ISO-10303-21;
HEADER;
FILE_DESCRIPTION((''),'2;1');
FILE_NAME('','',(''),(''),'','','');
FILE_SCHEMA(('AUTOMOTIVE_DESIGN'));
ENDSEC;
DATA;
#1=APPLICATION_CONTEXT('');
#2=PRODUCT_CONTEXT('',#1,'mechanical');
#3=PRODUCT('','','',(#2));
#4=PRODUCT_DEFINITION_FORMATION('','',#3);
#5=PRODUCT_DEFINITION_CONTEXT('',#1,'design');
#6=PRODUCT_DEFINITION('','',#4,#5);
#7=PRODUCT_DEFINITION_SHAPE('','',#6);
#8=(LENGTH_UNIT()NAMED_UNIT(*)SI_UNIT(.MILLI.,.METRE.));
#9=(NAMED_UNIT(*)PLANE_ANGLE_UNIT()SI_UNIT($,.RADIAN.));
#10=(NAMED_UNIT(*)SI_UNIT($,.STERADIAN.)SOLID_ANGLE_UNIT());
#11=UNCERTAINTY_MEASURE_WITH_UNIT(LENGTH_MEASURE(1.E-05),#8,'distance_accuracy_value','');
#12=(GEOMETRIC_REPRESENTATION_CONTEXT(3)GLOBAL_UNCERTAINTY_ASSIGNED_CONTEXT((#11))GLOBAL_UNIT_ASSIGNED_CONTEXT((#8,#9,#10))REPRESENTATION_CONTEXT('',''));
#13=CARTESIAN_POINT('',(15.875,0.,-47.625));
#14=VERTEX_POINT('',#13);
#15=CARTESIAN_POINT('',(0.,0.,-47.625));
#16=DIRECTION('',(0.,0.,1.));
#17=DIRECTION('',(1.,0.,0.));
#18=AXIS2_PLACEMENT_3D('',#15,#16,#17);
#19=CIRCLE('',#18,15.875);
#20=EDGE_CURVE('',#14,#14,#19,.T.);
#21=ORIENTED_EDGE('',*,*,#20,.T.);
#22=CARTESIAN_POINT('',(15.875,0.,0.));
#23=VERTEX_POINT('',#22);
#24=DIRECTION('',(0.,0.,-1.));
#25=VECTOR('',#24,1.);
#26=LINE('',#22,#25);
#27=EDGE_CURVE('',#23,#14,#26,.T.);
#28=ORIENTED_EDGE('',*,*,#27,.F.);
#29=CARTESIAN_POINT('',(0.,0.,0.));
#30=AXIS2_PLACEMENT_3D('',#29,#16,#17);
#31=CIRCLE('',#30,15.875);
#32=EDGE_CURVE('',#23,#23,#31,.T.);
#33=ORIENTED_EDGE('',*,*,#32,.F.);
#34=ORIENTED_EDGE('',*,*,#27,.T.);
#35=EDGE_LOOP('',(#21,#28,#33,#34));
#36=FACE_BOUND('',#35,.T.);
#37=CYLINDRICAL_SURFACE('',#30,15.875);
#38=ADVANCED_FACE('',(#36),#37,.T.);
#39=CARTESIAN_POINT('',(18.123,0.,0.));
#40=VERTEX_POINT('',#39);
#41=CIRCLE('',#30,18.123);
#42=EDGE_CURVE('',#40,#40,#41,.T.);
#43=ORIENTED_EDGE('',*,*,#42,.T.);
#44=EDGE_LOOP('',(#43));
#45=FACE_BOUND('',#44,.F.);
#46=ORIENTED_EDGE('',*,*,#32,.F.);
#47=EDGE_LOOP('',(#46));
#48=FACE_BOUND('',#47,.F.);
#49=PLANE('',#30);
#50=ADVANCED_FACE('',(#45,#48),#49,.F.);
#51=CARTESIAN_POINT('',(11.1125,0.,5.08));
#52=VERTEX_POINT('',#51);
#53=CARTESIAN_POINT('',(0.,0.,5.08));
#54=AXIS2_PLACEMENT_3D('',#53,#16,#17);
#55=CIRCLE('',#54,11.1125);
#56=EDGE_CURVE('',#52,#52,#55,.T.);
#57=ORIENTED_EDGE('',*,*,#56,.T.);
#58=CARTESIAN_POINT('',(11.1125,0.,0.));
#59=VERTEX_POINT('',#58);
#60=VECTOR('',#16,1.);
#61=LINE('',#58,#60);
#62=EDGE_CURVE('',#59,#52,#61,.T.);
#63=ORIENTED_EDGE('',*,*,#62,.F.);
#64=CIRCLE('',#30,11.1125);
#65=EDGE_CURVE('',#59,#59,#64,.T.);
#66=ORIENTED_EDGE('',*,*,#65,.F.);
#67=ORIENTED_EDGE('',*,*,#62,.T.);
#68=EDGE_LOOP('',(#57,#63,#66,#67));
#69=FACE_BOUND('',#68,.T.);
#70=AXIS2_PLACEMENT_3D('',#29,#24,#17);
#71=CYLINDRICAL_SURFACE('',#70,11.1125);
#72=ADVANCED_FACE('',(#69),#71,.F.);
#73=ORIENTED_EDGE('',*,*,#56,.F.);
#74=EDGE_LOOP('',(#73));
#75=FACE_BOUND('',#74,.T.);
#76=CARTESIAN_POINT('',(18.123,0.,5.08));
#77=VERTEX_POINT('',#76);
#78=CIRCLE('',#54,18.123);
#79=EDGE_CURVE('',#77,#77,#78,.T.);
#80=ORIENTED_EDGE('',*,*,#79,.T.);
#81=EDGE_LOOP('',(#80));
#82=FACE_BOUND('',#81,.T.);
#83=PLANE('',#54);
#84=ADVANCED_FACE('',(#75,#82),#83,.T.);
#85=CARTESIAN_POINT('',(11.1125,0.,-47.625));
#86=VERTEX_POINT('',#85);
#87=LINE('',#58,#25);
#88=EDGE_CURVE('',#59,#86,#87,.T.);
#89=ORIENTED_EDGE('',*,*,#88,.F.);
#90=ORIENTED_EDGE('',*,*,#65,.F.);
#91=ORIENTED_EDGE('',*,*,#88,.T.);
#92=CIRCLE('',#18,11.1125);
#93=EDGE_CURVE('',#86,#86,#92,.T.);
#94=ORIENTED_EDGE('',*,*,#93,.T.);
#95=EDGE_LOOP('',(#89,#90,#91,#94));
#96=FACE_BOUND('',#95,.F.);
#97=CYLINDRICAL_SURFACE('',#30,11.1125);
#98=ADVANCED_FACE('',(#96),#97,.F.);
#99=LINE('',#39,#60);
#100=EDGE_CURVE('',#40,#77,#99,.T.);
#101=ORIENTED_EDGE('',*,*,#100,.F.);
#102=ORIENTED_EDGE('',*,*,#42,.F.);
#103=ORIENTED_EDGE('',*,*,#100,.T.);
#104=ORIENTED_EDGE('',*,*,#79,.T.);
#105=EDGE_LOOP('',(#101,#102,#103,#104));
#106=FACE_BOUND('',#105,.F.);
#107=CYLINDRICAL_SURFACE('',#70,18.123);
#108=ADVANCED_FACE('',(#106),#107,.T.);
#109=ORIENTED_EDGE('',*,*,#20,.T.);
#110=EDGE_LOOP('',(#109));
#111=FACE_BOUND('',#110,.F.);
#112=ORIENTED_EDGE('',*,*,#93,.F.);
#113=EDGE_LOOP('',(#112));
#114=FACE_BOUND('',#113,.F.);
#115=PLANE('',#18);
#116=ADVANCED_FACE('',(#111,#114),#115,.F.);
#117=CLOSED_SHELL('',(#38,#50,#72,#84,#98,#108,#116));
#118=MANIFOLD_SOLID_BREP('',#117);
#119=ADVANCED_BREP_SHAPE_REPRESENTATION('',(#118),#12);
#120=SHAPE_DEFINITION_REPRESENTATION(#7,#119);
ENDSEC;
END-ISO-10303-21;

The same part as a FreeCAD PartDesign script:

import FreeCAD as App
import Part
import Sketcher
Q = App.Units.Quantity

doc = App.newDocument("Part")
body = doc.addObject("PartDesign::Body", "Body")

sketch1 = doc.addObject("Sketcher::SketchObject", "Sketch")
body.addObject(sketch1)
sketch1.AttachmentSupport = (doc.XY_Plane, [""])
sketch1.MapMode = "FlatFace"
sketch1.addGeometry(Part.Circle(App.Vector(0, 0, 0), App.Vector(0, 0, 1), 16), False)
sketch1.addGeometry(Part.Circle(App.Vector(0, 0, 0), App.Vector(0, 0, 1), 11), False)
sketch1.addConstraint(Sketcher.Constraint("Coincident", 0, 3, -1, 1))
sketch1.addConstraint(Sketcher.Constraint("Coincident", 1, 3, -1, 1))
sketch1.addConstraint(Sketcher.Constraint("Diameter", 1, Q("0.875 in")))
sketch1.addConstraint(Sketcher.Constraint("Diameter", 0, Q("1.25 in")))
pad1 = doc.addObject("PartDesign::Pad", "Pad")
body.addObject(pad1)
pad1.Profile = sketch1
pad1.Length = Q("1.875 in")
pad1.Reversed = True

sketch2 = doc.addObject("Sketcher::SketchObject", "Sketch001")
body.addObject(sketch2)
sketch2.AttachmentSupport = (doc.XY_Plane, [""])
sketch2.MapMode = "FlatFace"
sketch2.addGeometry(Part.Circle(App.Vector(0, 0, 0), App.Vector(0, 0, 1), 18), False)
sketch2.addGeometry(Part.Circle(App.Vector(0, 0, 0), App.Vector(0, 0, 1), 11), False)
sketch2.addConstraint(Sketcher.Constraint("Coincident", 0, 3, -1, 1))
sketch2.addConstraint(Sketcher.Constraint("Coincident", 1, 3, -1, 1))
sketch2.addConstraint(Sketcher.Constraint("Diameter", 0, Q("1.427 in")))
sketch2.addConstraint(Sketcher.Constraint("Diameter", 1, Q("0.875 in")))
pad2 = doc.addObject("PartDesign::Pad", "Pad001")
body.addObject(pad2)
pad2.Profile = sketch2
pad2.Length = Q("0.2 in")

doc.recompute()
